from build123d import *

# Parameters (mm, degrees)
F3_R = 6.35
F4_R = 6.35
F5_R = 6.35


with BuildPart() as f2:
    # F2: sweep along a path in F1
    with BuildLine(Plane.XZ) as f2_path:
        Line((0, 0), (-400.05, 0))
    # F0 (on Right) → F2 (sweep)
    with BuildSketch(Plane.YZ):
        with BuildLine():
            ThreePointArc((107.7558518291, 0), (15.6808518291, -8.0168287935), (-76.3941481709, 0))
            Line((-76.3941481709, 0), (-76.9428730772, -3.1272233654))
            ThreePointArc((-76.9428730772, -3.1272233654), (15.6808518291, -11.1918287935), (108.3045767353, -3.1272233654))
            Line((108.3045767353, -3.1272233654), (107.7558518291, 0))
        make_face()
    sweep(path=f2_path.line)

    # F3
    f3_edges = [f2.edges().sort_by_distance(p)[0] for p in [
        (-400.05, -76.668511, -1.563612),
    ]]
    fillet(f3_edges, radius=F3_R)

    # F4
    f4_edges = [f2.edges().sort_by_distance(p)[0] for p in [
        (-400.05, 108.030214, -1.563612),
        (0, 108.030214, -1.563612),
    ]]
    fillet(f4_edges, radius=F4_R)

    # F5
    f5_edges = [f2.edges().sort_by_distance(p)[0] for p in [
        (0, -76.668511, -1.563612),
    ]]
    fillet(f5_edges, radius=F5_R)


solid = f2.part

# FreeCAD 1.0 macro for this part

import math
import FreeCAD as App
import Part
import Sketcher

V = App.Vector
Q = App.Units.Quantity


def edges_at(feature, points):
    """Names of the edges that pass closest to the given points."""
    edges = feature.Shape.Edges
    near = lambda p: min(range(len(edges)), key=lambda i: edges[i].distToShape(Part.Vertex(*p))[0])
    return sorted({f"Edge{near(p) + 1}" for p in points})

doc = App.newDocument("Part")
body = doc.addObject("PartDesign::Body", "Body")

# Sketch on YZ plane
sketch1 = doc.addObject("Sketcher::SketchObject", "Sketch")
body.addObject(sketch1)
sketch1.AttachmentSupport = (doc.YZ_Plane, [""])
sketch1.MapMode = "FlatFace"
sketch1.addGeometry(Part.ArcOfCircle(Part.Circle(V(15.7, 524.7, 0), V(0, 0, 1), 532.8), math.radians(-99.95), math.radians(-80.05)), False)
sketch1.addGeometry(Part.LineSegment(V(-76.4, 0, 0), V(-76.9, -3.1, 0)), False)
sketch1.addGeometry(Part.ArcOfCircle(Part.Circle(V(15.7, 524.7, 0), V(0, 0, 1), 535.9), math.radians(-99.95), math.radians(-80.05)), False)
sketch1.addGeometry(Part.LineSegment(V(108.3, -3.1, 0), V(107.8, 0, 0)), False)
sketch1.addConstraint(Sketcher.Constraint("Coincident", 0, 1, 1, 1))
sketch1.addConstraint(Sketcher.Constraint("Coincident", 1, 2, 2, 1))
sketch1.addConstraint(Sketcher.Constraint("Coincident", 2, 2, 3, 1))
sketch1.addConstraint(Sketcher.Constraint("Coincident", 3, 2, 0, 2))
sketch1.addConstraint(Sketcher.Constraint("Coincident", 2, 3, 0, 3))
sketch1.addConstraint(Sketcher.Constraint("PointOnObject", 0, 1, -1))
sketch1.addConstraint(Sketcher.Constraint("PointOnObject", 3, 2, -1))
sketch1.addConstraint(Sketcher.Constraint("Horizontal", 1, 2, 2, 2))
sketch1.addConstraint(Sketcher.Constraint("DistanceX", 0, 1, 3, 2, Q("7.25 in")))
sketch1.addConstraint(Sketcher.Constraint("Distance", 1, Q("0.125 in")))
sketch1.addConstraint(Sketcher.Constraint("Radius", 0, 532.758987))
sketch1.addConstraint(Sketcher.Constraint("DistanceX", -1, 1, 0, 3, 15.680852))
sketch1.addConstraint(Sketcher.Constraint("DistanceY", 1, 2, 2, 3, 527.869381))

# Sketch on XY plane
sketch2 = doc.addObject("Sketcher::SketchObject", "Sketch001")
body.addObject(sketch2)
sketch2.AttachmentSupport = (doc.XY_Plane, [""])
sketch2.MapMode = "FlatFace"
sketch2.addGeometry(Part.LineSegment(V(0, 0, 0), V(-400, 0, 0)), False)
sketch2.addConstraint(Sketcher.Constraint("Horizontal", 0))
sketch2.addConstraint(Sketcher.Constraint("Coincident", 0, 1, -1, 1))
sketch2.addConstraint(Sketcher.Constraint("DistanceX", 0, 2, 0, 1, Q("15.75 in")))
doc.recompute()

additivepipe = doc.addObject("PartDesign::AdditivePipe", "AdditivePipe")
body.addObject(additivepipe)
additivepipe.Profile = sketch1
additivepipe.Spine = (sketch2, ["Edge1"])
doc.recompute()

fillet = doc.addObject("PartDesign::Fillet", "Fillet")
body.addObject(fillet)
fillet.Base = (additivepipe, edges_at(additivepipe, [(-400.05, -76.669, -1.564)]))
fillet.Radius = Q("0.25 in")
doc.recompute()

fillet2 = doc.addObject("PartDesign::Fillet", "Fillet001")
body.addObject(fillet2)
fillet2.Base = (fillet, edges_at(fillet, [(-400.05, 108.03, -1.564), (0, 108.03, -1.564)]))
fillet2.Radius = Q("0.25 in")
doc.recompute()

fillet3 = doc.addObject("PartDesign::Fillet", "Fillet002")
body.addObject(fillet3)
fillet3.Base = (fillet2, edges_at(fillet2, [(0, -76.669, -1.564)]))
fillet3.Radius = Q("0.25 in")

doc.recompute()
